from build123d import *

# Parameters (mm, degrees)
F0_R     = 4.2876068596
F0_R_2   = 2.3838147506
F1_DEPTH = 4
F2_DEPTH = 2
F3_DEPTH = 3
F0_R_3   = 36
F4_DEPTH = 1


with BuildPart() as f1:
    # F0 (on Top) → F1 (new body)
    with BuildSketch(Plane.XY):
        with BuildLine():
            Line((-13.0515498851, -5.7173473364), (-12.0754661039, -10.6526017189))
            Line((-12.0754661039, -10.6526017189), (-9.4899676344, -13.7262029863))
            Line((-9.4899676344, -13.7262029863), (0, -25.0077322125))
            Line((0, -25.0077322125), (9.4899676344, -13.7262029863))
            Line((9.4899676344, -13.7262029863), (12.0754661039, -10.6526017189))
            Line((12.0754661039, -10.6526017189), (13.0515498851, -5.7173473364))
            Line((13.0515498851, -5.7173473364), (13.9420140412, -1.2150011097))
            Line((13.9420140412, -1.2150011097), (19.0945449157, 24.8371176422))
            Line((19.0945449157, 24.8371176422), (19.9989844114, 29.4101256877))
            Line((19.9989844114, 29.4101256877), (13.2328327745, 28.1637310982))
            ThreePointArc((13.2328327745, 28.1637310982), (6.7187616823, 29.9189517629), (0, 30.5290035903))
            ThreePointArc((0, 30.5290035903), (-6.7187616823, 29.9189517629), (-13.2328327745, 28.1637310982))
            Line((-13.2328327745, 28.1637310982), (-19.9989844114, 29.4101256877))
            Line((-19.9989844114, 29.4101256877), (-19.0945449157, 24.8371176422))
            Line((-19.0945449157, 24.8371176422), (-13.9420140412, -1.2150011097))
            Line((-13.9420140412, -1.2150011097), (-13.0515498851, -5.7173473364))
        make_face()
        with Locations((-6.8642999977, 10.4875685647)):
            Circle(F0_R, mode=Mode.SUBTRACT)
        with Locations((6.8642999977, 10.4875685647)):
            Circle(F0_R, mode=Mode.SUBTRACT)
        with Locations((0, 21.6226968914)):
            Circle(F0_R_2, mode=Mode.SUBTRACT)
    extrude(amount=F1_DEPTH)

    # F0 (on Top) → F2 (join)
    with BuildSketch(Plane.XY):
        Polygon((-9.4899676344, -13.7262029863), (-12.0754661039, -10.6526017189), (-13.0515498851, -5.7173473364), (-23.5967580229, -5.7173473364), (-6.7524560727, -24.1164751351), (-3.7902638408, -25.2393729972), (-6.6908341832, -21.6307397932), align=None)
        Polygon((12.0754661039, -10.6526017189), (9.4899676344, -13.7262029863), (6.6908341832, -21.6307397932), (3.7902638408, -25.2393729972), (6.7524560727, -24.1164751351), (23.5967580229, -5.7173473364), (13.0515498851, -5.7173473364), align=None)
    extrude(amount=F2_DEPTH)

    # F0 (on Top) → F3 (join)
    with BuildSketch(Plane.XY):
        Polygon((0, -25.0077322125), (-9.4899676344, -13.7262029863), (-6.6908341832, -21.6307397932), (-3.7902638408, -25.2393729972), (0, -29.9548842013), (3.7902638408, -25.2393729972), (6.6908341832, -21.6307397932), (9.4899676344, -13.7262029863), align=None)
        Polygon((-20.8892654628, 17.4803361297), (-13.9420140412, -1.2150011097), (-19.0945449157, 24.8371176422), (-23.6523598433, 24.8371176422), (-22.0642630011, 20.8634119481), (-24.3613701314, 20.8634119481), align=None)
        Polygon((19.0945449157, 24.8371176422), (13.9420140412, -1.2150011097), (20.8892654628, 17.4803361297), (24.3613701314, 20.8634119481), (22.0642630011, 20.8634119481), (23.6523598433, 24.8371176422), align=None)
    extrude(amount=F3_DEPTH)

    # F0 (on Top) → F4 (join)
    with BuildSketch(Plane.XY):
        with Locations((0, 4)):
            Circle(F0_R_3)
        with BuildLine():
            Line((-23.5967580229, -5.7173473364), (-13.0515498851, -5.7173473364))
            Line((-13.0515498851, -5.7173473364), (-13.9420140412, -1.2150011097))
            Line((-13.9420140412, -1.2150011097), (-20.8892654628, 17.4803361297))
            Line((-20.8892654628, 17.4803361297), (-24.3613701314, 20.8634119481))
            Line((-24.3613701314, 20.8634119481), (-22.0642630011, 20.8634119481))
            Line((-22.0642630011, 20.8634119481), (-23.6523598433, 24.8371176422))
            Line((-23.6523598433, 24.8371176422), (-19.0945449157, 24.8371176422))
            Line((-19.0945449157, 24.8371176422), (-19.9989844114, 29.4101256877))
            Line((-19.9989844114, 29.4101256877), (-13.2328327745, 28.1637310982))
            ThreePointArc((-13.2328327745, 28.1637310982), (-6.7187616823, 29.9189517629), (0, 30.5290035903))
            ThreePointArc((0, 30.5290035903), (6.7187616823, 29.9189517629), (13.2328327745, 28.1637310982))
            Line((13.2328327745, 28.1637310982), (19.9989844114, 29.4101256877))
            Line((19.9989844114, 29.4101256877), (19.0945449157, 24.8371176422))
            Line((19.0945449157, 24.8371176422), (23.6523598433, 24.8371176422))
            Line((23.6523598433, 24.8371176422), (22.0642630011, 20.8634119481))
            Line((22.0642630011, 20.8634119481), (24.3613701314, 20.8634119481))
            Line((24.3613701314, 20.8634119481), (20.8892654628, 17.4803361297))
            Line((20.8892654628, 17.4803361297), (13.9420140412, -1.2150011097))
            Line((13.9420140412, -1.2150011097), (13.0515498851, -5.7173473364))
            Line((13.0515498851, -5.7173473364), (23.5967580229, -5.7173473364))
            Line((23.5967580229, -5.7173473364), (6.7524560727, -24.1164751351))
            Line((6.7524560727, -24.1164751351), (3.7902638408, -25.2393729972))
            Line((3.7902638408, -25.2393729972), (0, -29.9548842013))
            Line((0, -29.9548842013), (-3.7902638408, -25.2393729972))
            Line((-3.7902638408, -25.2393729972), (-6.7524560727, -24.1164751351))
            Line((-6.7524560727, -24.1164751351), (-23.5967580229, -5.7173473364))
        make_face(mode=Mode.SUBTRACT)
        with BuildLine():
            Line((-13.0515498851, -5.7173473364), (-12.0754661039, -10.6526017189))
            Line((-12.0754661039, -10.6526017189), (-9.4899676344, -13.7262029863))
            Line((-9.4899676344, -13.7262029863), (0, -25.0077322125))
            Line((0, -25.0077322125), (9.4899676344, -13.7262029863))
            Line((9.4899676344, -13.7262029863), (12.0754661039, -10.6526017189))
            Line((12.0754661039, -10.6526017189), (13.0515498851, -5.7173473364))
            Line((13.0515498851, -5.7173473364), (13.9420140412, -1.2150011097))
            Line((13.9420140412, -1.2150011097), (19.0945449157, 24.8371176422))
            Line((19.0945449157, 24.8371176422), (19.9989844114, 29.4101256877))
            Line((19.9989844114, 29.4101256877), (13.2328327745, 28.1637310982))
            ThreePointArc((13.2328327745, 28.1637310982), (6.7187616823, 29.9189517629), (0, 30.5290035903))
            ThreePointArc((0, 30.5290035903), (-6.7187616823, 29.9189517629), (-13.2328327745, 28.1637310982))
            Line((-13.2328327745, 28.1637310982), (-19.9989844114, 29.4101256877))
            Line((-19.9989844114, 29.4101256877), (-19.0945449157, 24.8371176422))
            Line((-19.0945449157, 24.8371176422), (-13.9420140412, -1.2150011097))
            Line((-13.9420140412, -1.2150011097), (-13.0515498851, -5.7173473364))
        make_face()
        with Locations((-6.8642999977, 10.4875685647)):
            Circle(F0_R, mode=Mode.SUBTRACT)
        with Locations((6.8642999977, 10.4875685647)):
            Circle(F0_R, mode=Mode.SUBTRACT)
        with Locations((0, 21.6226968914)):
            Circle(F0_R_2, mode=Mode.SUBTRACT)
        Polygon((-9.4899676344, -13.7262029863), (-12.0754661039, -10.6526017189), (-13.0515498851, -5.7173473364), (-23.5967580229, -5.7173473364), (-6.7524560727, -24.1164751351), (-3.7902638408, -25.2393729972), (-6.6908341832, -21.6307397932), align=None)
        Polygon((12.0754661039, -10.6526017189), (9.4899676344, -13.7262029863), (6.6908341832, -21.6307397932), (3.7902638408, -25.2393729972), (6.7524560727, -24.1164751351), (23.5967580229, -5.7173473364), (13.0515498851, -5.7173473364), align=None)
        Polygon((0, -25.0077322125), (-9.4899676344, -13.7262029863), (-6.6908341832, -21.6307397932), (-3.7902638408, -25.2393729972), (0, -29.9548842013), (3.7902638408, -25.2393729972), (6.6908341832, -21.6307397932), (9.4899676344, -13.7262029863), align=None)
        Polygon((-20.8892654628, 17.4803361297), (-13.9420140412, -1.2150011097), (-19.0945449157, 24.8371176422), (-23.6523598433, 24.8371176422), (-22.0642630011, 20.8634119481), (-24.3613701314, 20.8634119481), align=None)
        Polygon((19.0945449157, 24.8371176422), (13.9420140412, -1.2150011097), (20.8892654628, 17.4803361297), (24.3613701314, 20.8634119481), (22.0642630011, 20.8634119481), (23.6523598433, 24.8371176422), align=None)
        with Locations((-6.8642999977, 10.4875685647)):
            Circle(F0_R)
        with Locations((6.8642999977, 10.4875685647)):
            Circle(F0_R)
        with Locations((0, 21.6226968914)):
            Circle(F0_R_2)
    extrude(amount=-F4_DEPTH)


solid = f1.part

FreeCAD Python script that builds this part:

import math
import FreeCAD as App
import Part
import Sketcher
from FreeCAD import Vector

doc = App.newDocument("Part")
params = doc.addObject("Spreadsheet::Sheet", "Params")
for row, (alias, value) in enumerate([
    ("pad1_length", "4 mm"),
    ("pad2_length", "2 mm"),
    ("pad3_length", "3 mm"),
    ("sketch4_diameter", "72 mm"),
    ("pad4_length", "1 mm"),
], start=1):
    params.set(f"A{row}", alias)
    params.set(f"B{row}", "=" + value)
    params.setAlias(f"B{row}", alias)

body = doc.addObject("PartDesign::Body", "Body")

# Sketch on XY plane
sketch1 = doc.addObject("Sketcher::SketchObject", "Sketch")
body.addObject(sketch1)
sketch1.AttachmentSupport = (doc.XY_Plane, [""])
sketch1.MapMode = "FlatFace"
sketch1.addGeometry([
    Part.LineSegment(Vector(-13.1, -5.7, 0), Vector(-12.1, -10.7, 0)),  # 0
    Part.LineSegment(Vector(-12.1, -10.7, 0), Vector(-9.5, -13.7, 0)),  # 1
    Part.LineSegment(Vector(-9.5, -13.7, 0), Vector(0, -25, 0)),  # 2
    Part.LineSegment(Vector(0, -25, 0), Vector(9.5, -13.7, 0)),  # 3
    Part.LineSegment(Vector(9.5, -13.7, 0), Vector(12.1, -10.7, 0)),  # 4
    Part.LineSegment(Vector(12.1, -10.7, 0), Vector(13.1, -5.7, 0)),  # 5
    Part.LineSegment(Vector(13.1, -5.7, 0), Vector(13.9, -1.2, 0)),  # 6
    Part.LineSegment(Vector(13.9, -1.2, 0), Vector(19.1, 24.8, 0)),  # 7
    Part.LineSegment(Vector(19.1, 24.8, 0), Vector(20, 29.4, 0)),  # 8
    Part.LineSegment(Vector(20, 29.4, 0), Vector(13.2, 28.2, 0)),  # 9
    Part.ArcOfCircle(Part.Circle(Vector(-0.2, -8.6, 0), Vector(0, 0, 1), 39.1), math.radians(69.97), math.radians(89.76)),  # 10
    Part.ArcOfCircle(Part.Circle(Vector(0.2, -8.6, 0), Vector(0, 0, 1), 39.1), math.radians(90.24), math.radians(110.03)),  # 11
    Part.LineSegment(Vector(-13.2, 28.2, 0), Vector(-20, 29.4, 0)),  # 12
    Part.LineSegment(Vector(-20, 29.4, 0), Vector(-19.1, 24.8, 0)),  # 13
    Part.LineSegment(Vector(-19.1, 24.8, 0), Vector(-13.9, -1.2, 0)),  # 14
    Part.LineSegment(Vector(-13.9, -1.2, 0), Vector(-13.1, -5.7, 0)),  # 15
    Part.Circle(Vector(-6.9, 10.5, 0), Vector(0, 0, 1), 4.3),  # 16
    Part.Circle(Vector(6.9, 10.5, 0), Vector(0, 0, 1), 4.3),  # 17
    Part.Circle(Vector(0, 21.6, 0), Vector(0, 0, 1), 2.4),  # 18
], False)
sketch1.addConstraint([
    Sketcher.Constraint("Coincident", 0, 2, 1, 1),
    Sketcher.Constraint("Coincident", 1, 2, 2, 1),
    Sketcher.Constraint("Coincident", 2, 2, 3, 1),
    Sketcher.Constraint("Coincident", 3, 2, 4, 1),
    Sketcher.Constraint("Coincident", 4, 2, 5, 1),
    Sketcher.Constraint("Coincident", 5, 2, 6, 1),
    Sketcher.Constraint("Coincident", 6, 2, 7, 1),
    Sketcher.Constraint("Coincident", 7, 2, 8, 1),
    Sketcher.Constraint("Coincident", 8, 2, 9, 1),
    Sketcher.Constraint("Coincident", 9, 2, 10, 1),
    Sketcher.Constraint("Coincident", 10, 2, 11, 1),
    Sketcher.Constraint("Coincident", 11, 2, 12, 1),
    Sketcher.Constraint("Coincident", 12, 2, 13, 1),
    Sketcher.Constraint("Coincident", 13, 2, 14, 1),
    Sketcher.Constraint("Coincident", 14, 2, 15, 1),
    Sketcher.Constraint("Coincident", 15, 2, 0, 1),
    Sketcher.Constraint("Equal", 10, 11),
    Sketcher.Constraint("Equal", 16, 17),
    Sketcher.Constraint("Symmetric", 10, 3, 11, 3, -2),
    Sketcher.Constraint("Symmetric", 16, 3, 17, 3, -2),
    Sketcher.Constraint("Symmetric", 1, 2, 3, 2, -2),
    Sketcher.Constraint("Symmetric", 0, 2, 4, 2, -2),
    Sketcher.Constraint("Symmetric", 8, 2, 12, 2, -2),
    Sketcher.Constraint("Symmetric", 7, 2, 13, 2, -2),
    Sketcher.Constraint("Symmetric", 6, 2, 14, 2, -2),
    Sketcher.Constraint("Symmetric", 5, 2, 15, 2, -2),
    Sketcher.Constraint("PointOnObject", 18, 3, -2),
    Sketcher.Constraint("PointOnObject", 2, 2, -2),
    Sketcher.Constraint("Parallel", 1, 2),
    Sketcher.Constraint("Parallel", 5, 6),
    Sketcher.Constraint("Parallel", 6, 7),
    Sketcher.Constraint("Parallel", 7, 8),
    Sketcher.Constraint("Horizontal", 9, 2, 11, 2),
    Sketcher.Constraint("Diameter", 18, 4.76763),
    Sketcher.Constraint("Diameter", 16, 8.575214),
    Sketcher.Constraint("DistanceY", 6, 2, -1, 1, 1.215001),
    Sketcher.Constraint("Radius", 10, 39.124214),
    Sketcher.Constraint("DistanceX", 16, 3, 10, 3, 6.698998),
    Sketcher.Constraint("DistanceX", 10, 3, -1, 1, 0.165302),
    Sketcher.Constraint("DistanceY", 0, 2, -1, 1, 10.652602),
    Sketcher.Constraint("DistanceY", 0, 2, 18, 3, 32.275299),
    Sketcher.Constraint("DistanceX", 0, 2, 1, 2, 2.585498),
    Sketcher.Constraint("DistanceY", 1, 2, 0, 2, 3.073601),
    Sketcher.Constraint("DistanceY", 2, 2, 16, 3, 35.495301),
    Sketcher.Constraint("Distance", 6, 4.589559),
    Sketcher.Constraint("Distance", 7, 26.556759),
    Sketcher.Constraint("Distance", 8, 4.661589),
    Sketcher.Constraint("DistanceY", 10, 3, -1, 1, 8.594861),
    Sketcher.Constraint("DistanceY", -1, 1, 16, 3, 10.487569),
    Sketcher.Constraint("DistanceX", -1, 1, 5, 2, 13.05155),
    Sketcher.Constraint("DistanceY", -1, 1, 9, 2, 28.163731),
])
pad1 = doc.addObject("PartDesign::Pad", "Pad")
body.addObject(pad1)
pad1.Profile = sketch1
pad1.setExpression("Length", "Params.pad1_length")

# Sketch on XY plane
sketch2 = doc.addObject("Sketcher::SketchObject", "Sketch001")
body.addObject(sketch2)
sketch2.AttachmentSupport = (doc.XY_Plane, [""])
sketch2.MapMode = "FlatFace"
sketch2.addGeometry([
    Part.LineSegment(Vector(-9.5, -13.7, 0), Vector(-12.1, -10.7, 0)),  # 0
    Part.LineSegment(Vector(-12.1, -10.7, 0), Vector(-13.1, -5.7, 0)),  # 1
    Part.LineSegment(Vector(-13.1, -5.7, 0), Vector(-23.6, -5.7, 0)),  # 2
    Part.LineSegment(Vector(-23.6, -5.7, 0), Vector(-6.8, -24.1, 0)),  # 3
    Part.LineSegment(Vector(-6.8, -24.1, 0), Vector(-3.8, -25.2, 0)),  # 4
    Part.LineSegment(Vector(-3.8, -25.2, 0), Vector(-6.7, -21.6, 0)),  # 5
    Part.LineSegment(Vector(-6.7, -21.6, 0), Vector(-9.5, -13.7, 0)),  # 6
    Part.LineSegment(Vector(12.1, -10.7, 0), Vector(9.5, -13.7, 0)),  # 7
    Part.LineSegment(Vector(9.5, -13.7, 0), Vector(6.7, -21.6, 0)),  # 8
    Part.LineSegment(Vector(6.7, -21.6, 0), Vector(3.8, -25.2, 0)),  # 9
    Part.LineSegment(Vector(3.8, -25.2, 0), Vector(6.8, -24.1, 0)),  # 10
    Part.LineSegment(Vector(6.8, -24.1, 0), Vector(23.6, -5.7, 0)),  # 11
    Part.LineSegment(Vector(23.6, -5.7, 0), Vector(13.1, -5.7, 0)),  # 12
    Part.LineSegment(Vector(13.1, -5.7, 0), Vector(12.1, -10.7, 0)),  # 13
], False)
sketch2.addConstraint([
    Sketcher.Constraint("Coincident", 0, 2, 1, 1),
    Sketcher.Constraint("Coincident", 1, 2, 2, 1),
    Sketcher.Constraint("Coincident", 2, 2, 3, 1),
    Sketcher.Constraint("Coincident", 3, 2, 4, 1),
    Sketcher.Constraint("Coincident", 4, 2, 5, 1),
    Sketcher.Constraint("Coincident", 5, 2, 6, 1),
    Sketcher.Constraint("Coincident", 6, 2, 0, 1),
    Sketcher.Constraint("Coincident", 7, 2, 8, 1),
    Sketcher.Constraint("Coincident", 8, 2, 9, 1),
    Sketcher.Constraint("Coincident", 9, 2, 10, 1),
    Sketcher.Constraint("Coincident", 10, 2, 11, 1),
    Sketcher.Constraint("Coincident", 11, 2, 12, 1),
    Sketcher.Constraint("Coincident", 12, 2, 13, 1),
    Sketcher.Constraint("Coincident", 13, 2, 7, 1),
    Sketcher.Constraint("Horizontal", 2),
    Sketcher.Constraint("Horizontal", 12),
    Sketcher.Constraint("Symmetric", 6, 2, 7, 2, -2),
    Sketcher.Constraint("Symmetric", 5, 2, 8, 2, -2),
    Sketcher.Constraint("Symmetric", 4, 2, 9, 2, -2),
    Sketcher.Constraint("Symmetric", 3, 2, 10, 2, -2),
    Sketcher.Constraint("Symmetric", 2, 2, 11, 2, -2),
    Sketcher.Constraint("Symmetric", 0, 2, 13, 2, -2),
    Sketcher.Constraint("Equal", 2, 12),
    Sketcher.Constraint("DistanceX", 2, 2, 2, 1, 10.545208),
    Sketcher.Constraint("DistanceY", 0, 2, -1, 1, 10.652602),
    Sketcher.Constraint("DistanceX", 2, 2, 3, 2, 16.844302),
    Sketcher.Constraint("DistanceX", 0, 2, 6, 2, 2.585498),
    Sketcher.Constraint("DistanceY", 6, 2, 0, 2, 3.073601),
    Sketcher.Constraint("DistanceX", 5, 2, 7, 2, 16.180802),
    Sketcher.Constraint("DistanceX", 4, 2, 8, 2, 10.481098),
    Sketcher.Constraint("DistanceX", 1, 2, -1, 1, 13.05155),
    Sketcher.Constraint("DistanceY", 5, 2, -1, 1, 21.63074),
    Sketcher.Constraint("DistanceX", 2, 2, 0, 2, 11.521292),
    Sketcher.Constraint("DistanceY", 4, 2, 0, 2, 14.586771),
    Sketcher.Constraint("Distance", 1, 5.030852),
    Sketcher.Constraint("Distance", 3, 24.945108),
])
pad2 = doc.addObject("PartDesign::Pad", "Pad001")
body.addObject(pad2)
pad2.Profile = sketch2
pad2.setExpression("Length", "Params.pad2_length")

# Sketch on XY plane
sketch3 = doc.addObject("Sketcher::SketchObject", "Sketch002")
body.addObject(sketch3)
sketch3.AttachmentSupport = (doc.XY_Plane, [""])
sketch3.MapMode = "FlatFace"
sketch3.addGeometry([
    Part.LineSegment(Vector(0, -25, 0), Vector(-9.5, -13.7, 0)),  # 0
    Part.LineSegment(Vector(-9.5, -13.7, 0), Vector(-6.7, -21.6, 0)),  # 1
    Part.LineSegment(Vector(-6.7, -21.6, 0), Vector(-3.8, -25.2, 0)),  # 2
    Part.LineSegment(Vector(-3.8, -25.2, 0), Vector(0, -30, 0)),  # 3
    Part.LineSegment(Vector(0, -30, 0), Vector(3.8, -25.2, 0)),  # 4
    Part.LineSegment(Vector(3.8, -25.2, 0), Vector(6.7, -21.6, 0)),  # 5
    Part.LineSegment(Vector(6.7, -21.6, 0), Vector(9.5, -13.7, 0)),  # 6
    Part.LineSegment(Vector(9.5, -13.7, 0), Vector(0, -25, 0)),  # 7
    Part.LineSegment(Vector(-20.9, 17.5, 0), Vector(-13.9, -1.2, 0)),  # 8
    Part.LineSegment(Vector(-13.9, -1.2, 0), Vector(-19.1, 24.8, 0)),  # 9
    Part.LineSegment(Vector(-19.1, 24.8, 0), Vector(-23.7, 24.8, 0)),  # 10
    Part.LineSegment(Vector(-23.7, 24.8, 0), Vector(-22.1, 20.9, 0)),  # 11
    Part.LineSegment(Vector(-22.1, 20.9, 0), Vector(-24.4, 20.9, 0)),  # 12
    Part.LineSegment(Vector(-24.4, 20.9, 0), Vector(-20.9, 17.5, 0)),  # 13
    Part.LineSegment(Vector(19.1, 24.8, 0), Vector(13.9, -1.2, 0)),  # 14
    Part.LineSegment(Vector(13.9, -1.2, 0), Vector(20.9, 17.5, 0)),  # 15
    Part.LineSegment(Vector(20.9, 17.5, 0), Vector(24.4, 20.9, 0)),  # 16
    Part.LineSegment(Vector(24.4, 20.9, 0), Vector(22.1, 20.9, 0)),  # 17
    Part.LineSegment(Vector(22.1, 20.9, 0), Vector(23.7, 24.8, 0)),  # 18
    Part.LineSegment(Vector(23.7, 24.8, 0), Vector(19.1, 24.8, 0)),  # 19
], False)
sketch3.addConstraint([
    Sketcher.Constraint("Coincident", 0, 2, 1, 1),
    Sketcher.Constraint("Coincident", 1, 2, 2, 1),
    Sketcher.Constraint("Coincident", 2, 2, 3, 1),
    Sketcher.Constraint("Coincident", 3, 2, 4, 1),
    Sketcher.Constraint("Coincident", 4, 2, 5, 1),
    Sketcher.Constraint("Coincident", 5, 2, 6, 1),
    Sketcher.Constraint("Coincident", 6, 2, 7, 1),
    Sketcher.Constraint("Coincident", 7, 2, 0, 1),
    Sketcher.Constraint("Coincident", 8, 2, 9, 1),
    Sketcher.Constraint("Coincident", 9, 2, 10, 1),
    Sketcher.Constraint("Coincident", 10, 2, 11, 1),
    Sketcher.Constraint("Coincident", 11, 2, 12, 1),
    Sketcher.Constraint("Coincident", 12, 2, 13, 1),
    Sketcher.Constraint("Coincident", 13, 2, 8, 1),
    Sketcher.Constraint("Coincident", 14, 2, 15, 1),
    Sketcher.Constraint("Coincident", 15, 2, 16, 1),
    Sketcher.Constraint("Coincident", 16, 2, 17, 1),
    Sketcher.Constraint("Coincident", 17, 2, 18, 1),
    Sketcher.Constraint("Coincident", 18, 2, 19, 1),
    Sketcher.Constraint("Coincident", 19, 2, 14, 1),
    Sketcher.Constraint("Horizontal", 10),
    Sketcher.Constraint("Horizontal", 12),
    Sketcher.Constraint("Horizontal", 17),
    Sketcher.Constraint("Horizontal", 19),
    Sketcher.Constraint("Symmetric", 2, 2, 4, 2, -2),
    Sketcher.Constraint("Symmetric", 1, 2, 5, 2, -2),
    Sketcher.Constraint("Symmetric", 0, 2, 6, 2, -2),
    Sketcher.Constraint("Symmetric", 8, 2, 14, 2, -2),
    Sketcher.Constraint("Symmetric", 13, 2, 15, 2, -2),
    Sketcher.Constraint("Symmetric", 12, 2, 16, 2, -2),
    Sketcher.Constraint("Symmetric", 10, 2, 18, 2, -2),
    Sketcher.Constraint("PointOnObject", 3, 2, -2),
    Sketcher.Constraint("PointOnObject", 7, 2, -2),
    Sketcher.Constraint("Parallel", 2, 3),
    Sketcher.Constraint("Equal", 12, 17),
    Sketcher.Constraint("Equal", 10, 19),
    Sketcher.Constraint("DistanceY", 8, 2, -1, 1, 1.215001),
    Sketcher.Constraint("DistanceX", 1, 2, 4, 2, 10.481098),
    Sketcher.Constraint("DistanceX", 0, 2, 5, 2, 16.180802),
    Sketcher.Constraint("DistanceY", 0, 2, 8, 2, 12.511202),
    Sketcher.Constraint("Distance", 3, 6.049971),
    Sketcher.Constraint("Distance", 8, 19.944421),
    Sketcher.Constraint("Distance", 9, 26.556759),
    Sketcher.Constraint("DistanceX", 10, 2, 10, 1, 4.557815),
    Sketcher.Constraint("DistanceX", 12, 2, 12, 1, 2.297107),
    Sketcher.Constraint("DistanceY", 1, 2, -1, 1, 21.63074),
    Sketcher.Constraint("DistanceX", 10, 2, -1, 1, 23.65236),
    Sketcher.Constraint("DistanceY", -1, 1, 11, 2, 20.863412),
    Sketcher.Constraint("DistanceX", 12, 2, -1, 1, 24.36137),
    Sketcher.Constraint("DistanceX", 1, 2, 2, 2, 2.90057),
    Sketcher.Constraint("DistanceY", 2, 2, 7, 2, 0.231641),
    Sketcher.Constraint("DistanceX", 8, 2, 1, 2, 7.25118),
    Sketcher.Constraint("DistanceX", 13, 2, 9, 2, 1.794721),
])
pad3 = doc.addObject("PartDesign::Pad", "Pad002")
body.addObject(pad3)
pad3.Profile = sketch3
pad3.setExpression("Length", "Params.pad3_length")

# Sketch on XY plane
sketch4 = doc.addObject("Sketcher::SketchObject", "Sketch003")
body.addObject(sketch4)
sketch4.AttachmentSupport = (doc.XY_Plane, [""])
sketch4.MapMode = "FlatFace"
sketch4.addGeometry(Part.Circle(Vector(0, 4, 0), Vector(0, 0, 1), 36), False)
sketch4.addConstraint([
    Sketcher.Constraint("PointOnObject", 0, 3, -2),
    Sketcher.Constraint("Diameter", 0, 72.0),
    Sketcher.Constraint("DistanceY", -1, 1, 0, 3, 4.0),
])
sketch4.setExpression("Constraints[1]", "Params.sketch4_diameter")
pad4 = doc.addObject("PartDesign::Pad", "Pad003")
body.addObject(pad4)
pad4.Profile = sketch4
pad4.setExpression("Length", "Params.pad4_length")
pad4.Reversed = True

doc.recompute()
